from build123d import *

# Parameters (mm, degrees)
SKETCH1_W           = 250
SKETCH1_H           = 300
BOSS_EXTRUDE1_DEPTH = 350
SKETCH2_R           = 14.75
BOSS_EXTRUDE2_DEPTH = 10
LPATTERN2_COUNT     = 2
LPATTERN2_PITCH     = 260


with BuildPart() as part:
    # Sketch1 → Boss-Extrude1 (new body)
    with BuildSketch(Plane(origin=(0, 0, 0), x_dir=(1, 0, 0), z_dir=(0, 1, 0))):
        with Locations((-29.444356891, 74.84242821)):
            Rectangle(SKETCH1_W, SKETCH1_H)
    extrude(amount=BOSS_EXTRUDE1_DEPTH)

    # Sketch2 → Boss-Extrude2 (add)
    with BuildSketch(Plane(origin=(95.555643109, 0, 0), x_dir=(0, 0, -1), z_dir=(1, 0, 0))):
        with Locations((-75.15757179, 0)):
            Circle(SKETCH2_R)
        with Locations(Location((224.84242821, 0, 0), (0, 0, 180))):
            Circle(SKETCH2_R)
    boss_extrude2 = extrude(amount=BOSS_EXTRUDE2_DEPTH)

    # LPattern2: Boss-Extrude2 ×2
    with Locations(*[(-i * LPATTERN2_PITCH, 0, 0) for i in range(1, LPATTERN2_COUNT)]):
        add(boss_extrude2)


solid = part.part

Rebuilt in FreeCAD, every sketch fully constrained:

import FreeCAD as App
import Part
import Sketcher

V = App.Vector

doc = App.newDocument("Part")
body = doc.addObject("PartDesign::Body", "Body")

sketch1 = body.newObject("Sketcher::SketchObject", "Sketch")
sketch1.AttachmentSupport = (doc.getObject("XZ_Plane"), [""])
sketch1.MapMode = "FlatFace"
sketch1.addGeometry([
    Part.LineSegment(V(-154, -225, 0), V(-154, 75, 0)),
    Part.LineSegment(V(-154, 75, 0), V(96, 75, 0)),
    Part.LineSegment(V(96, 75, 0), V(96, -225, 0)),
    Part.LineSegment(V(96, -225, 0), V(-154, -225, 0)),
], False)
sketch1.addConstraint([
    Sketcher.Constraint("Coincident", 0, 2, 1, 1),
    Sketcher.Constraint("Coincident", 1, 2, 2, 1),
    Sketcher.Constraint("Coincident", 2, 2, 3, 1),
    Sketcher.Constraint("Coincident", 3, 2, 0, 1),
    Sketcher.Constraint("Vertical", 0),
    Sketcher.Constraint("Horizontal", 1),
    Sketcher.Constraint("Vertical", 2),
    Sketcher.Constraint("Horizontal", 3),
    Sketcher.Constraint("DistanceX", 1, 1, 1, 2, 250.0),
    Sketcher.Constraint("DistanceY", 0, 1, 0, 2, 300.0),
    Sketcher.Constraint("DistanceY", -1, 1, 0, 2, 75.157572),
    Sketcher.Constraint("DistanceX", 0, 2, -1, 1, 154.444357),
])
pad1 = body.newObject("PartDesign::Pad", "Pad")
pad1.Profile = sketch1
pad1.Length = 350
pad1.Reversed = True

sketch2 = body.newObject("Sketcher::SketchObject", "Sketch001")
sketch2.AttachmentSupport = (doc.getObject("YZ_Plane"), [""])
sketch2.MapMode = "FlatFace"
sketch2.AttachmentOffset = App.Placement(V(0, 0, 95.555643), App.Rotation())
sketch2.addGeometry([
    Part.Circle(V(0, 75, 0), V(0, 0, 1), 15),
    Part.Circle(V(0, -225, 0), V(0, 0, 1), 15),
], False)
sketch2.addConstraint([
    Sketcher.Constraint("Equal", 0, 1),
    Sketcher.Constraint("PointOnObject", 0, 3, -2),
    Sketcher.Constraint("PointOnObject", 1, 3, -2),
    Sketcher.Constraint("Diameter", 0, 29.5),
    Sketcher.Constraint("DistanceY", 1, 3, 0, 3, 300.0),
    Sketcher.Constraint("DistanceY", -1, 1, 0, 3, 75.157572),
])
pad2 = body.newObject("PartDesign::Pad", "Pad001")
pad2.Profile = sketch2
pad2.Length = 10
doc.recompute()

linearpattern = body.newObject("PartDesign::LinearPattern", "LinearPattern")
linearpattern.Originals = [pad2]
linearpattern.Direction = (doc.getObject("X_Axis"), [""])
linearpattern.Mode = "offset"
linearpattern.Offset = 260
linearpattern.Occurrences = 2
linearpattern.Reversed = True
body.Tip = linearpattern

doc.recompute()
